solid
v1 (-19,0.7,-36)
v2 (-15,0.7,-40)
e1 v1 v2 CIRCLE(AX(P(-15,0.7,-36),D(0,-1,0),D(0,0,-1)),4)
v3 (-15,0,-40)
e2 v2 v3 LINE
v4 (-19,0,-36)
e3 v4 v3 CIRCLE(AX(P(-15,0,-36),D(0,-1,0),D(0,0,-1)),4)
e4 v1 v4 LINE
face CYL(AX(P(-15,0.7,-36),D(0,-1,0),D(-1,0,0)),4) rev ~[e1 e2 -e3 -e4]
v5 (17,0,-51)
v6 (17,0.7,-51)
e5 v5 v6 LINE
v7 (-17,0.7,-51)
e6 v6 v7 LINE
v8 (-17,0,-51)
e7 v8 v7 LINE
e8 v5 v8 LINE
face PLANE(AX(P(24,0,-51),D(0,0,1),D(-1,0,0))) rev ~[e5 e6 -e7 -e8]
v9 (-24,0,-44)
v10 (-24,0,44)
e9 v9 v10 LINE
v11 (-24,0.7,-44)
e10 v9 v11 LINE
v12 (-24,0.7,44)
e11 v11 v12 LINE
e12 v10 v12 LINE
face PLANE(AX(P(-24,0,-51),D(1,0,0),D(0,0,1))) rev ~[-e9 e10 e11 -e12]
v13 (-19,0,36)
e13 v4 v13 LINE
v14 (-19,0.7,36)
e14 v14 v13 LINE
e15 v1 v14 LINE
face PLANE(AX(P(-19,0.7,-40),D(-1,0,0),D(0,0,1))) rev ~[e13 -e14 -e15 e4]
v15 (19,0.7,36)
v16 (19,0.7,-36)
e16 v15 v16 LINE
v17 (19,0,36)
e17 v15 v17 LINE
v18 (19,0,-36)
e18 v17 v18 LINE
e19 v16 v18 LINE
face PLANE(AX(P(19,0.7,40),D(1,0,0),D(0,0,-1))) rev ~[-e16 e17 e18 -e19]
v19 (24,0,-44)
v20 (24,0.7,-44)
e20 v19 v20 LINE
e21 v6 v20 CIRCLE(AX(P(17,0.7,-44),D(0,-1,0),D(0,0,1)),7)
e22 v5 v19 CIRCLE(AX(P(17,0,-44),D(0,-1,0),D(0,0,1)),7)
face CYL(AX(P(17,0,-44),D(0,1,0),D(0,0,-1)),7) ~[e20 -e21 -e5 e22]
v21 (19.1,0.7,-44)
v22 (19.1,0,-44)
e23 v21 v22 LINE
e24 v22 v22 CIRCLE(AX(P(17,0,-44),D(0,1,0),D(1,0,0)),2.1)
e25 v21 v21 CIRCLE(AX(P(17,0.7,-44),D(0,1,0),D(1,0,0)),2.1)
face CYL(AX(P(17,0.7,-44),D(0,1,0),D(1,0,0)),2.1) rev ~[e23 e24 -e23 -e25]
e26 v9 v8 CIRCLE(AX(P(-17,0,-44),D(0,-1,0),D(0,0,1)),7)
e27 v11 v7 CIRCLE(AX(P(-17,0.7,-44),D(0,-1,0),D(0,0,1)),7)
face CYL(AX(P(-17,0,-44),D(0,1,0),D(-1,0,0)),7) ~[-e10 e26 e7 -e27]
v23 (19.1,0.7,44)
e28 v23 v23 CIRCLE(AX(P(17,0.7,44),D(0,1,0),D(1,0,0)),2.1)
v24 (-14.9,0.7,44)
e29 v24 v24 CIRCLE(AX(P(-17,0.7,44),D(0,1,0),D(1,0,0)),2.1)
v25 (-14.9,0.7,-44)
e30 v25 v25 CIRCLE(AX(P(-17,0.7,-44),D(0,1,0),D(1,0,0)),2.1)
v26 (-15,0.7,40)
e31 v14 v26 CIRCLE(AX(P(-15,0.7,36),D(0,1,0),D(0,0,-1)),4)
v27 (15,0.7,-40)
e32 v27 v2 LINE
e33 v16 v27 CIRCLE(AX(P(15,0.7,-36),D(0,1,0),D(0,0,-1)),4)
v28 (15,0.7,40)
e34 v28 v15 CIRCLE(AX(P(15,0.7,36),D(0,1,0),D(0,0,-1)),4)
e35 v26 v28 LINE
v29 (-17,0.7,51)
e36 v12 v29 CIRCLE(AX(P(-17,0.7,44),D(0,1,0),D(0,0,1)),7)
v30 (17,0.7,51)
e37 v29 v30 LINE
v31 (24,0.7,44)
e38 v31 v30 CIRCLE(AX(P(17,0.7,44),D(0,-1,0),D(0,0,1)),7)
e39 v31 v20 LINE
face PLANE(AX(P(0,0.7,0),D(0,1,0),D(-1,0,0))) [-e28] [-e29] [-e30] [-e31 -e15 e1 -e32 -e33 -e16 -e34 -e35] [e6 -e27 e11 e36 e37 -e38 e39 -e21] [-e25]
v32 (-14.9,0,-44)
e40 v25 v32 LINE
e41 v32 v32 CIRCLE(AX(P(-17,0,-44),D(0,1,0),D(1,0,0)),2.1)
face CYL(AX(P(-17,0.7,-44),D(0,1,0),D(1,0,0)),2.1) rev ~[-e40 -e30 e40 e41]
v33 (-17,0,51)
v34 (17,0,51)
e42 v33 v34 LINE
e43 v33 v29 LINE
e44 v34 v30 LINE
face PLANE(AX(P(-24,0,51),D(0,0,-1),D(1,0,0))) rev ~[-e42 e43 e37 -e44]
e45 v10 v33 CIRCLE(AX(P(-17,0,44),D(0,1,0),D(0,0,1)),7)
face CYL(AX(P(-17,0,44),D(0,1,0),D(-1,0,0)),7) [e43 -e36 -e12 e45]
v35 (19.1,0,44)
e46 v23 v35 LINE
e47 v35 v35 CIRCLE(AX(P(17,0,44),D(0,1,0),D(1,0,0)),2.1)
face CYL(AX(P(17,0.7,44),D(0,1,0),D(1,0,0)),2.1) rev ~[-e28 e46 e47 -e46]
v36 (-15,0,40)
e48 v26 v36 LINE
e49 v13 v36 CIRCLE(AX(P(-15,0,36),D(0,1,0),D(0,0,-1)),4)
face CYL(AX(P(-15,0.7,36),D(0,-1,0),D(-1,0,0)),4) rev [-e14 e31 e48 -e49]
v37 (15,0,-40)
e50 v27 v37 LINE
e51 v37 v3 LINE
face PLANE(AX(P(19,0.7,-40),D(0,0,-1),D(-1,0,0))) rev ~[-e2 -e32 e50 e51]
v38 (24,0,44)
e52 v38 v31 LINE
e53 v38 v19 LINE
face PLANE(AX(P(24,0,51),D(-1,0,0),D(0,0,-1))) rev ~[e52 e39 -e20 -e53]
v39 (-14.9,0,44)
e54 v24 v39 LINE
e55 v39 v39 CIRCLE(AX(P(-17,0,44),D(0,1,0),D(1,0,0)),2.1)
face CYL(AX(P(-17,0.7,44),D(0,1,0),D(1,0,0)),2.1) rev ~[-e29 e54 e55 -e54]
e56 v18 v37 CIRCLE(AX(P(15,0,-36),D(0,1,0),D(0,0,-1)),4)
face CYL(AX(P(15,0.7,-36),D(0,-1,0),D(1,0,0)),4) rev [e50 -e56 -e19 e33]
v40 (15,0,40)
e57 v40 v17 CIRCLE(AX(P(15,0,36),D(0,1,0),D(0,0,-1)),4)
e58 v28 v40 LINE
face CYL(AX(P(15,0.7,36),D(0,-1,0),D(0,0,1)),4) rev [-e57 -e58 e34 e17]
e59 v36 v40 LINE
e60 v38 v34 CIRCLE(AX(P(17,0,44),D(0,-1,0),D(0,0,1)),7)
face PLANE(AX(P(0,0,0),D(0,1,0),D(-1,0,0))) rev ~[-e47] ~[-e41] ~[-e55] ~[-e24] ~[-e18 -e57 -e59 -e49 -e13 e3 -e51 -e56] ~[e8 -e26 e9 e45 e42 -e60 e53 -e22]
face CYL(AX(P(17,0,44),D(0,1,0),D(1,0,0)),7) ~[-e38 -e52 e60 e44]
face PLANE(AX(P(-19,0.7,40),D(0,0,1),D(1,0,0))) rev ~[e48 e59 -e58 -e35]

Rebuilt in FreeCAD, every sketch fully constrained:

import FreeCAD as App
import Part
import Sketcher

V = App.Vector


def edges_at(feature, points):
    """Names of the edges that pass closest to the given points."""
    edges = feature.Shape.Edges
    near = lambda p: min(range(len(edges)), key=lambda i: edges[i].distToShape(Part.Vertex(*p))[0])
    return sorted({f"Edge{near(p) + 1}" for p in points})

doc = App.newDocument("Part")
body = doc.addObject("PartDesign::Body", "Body")

# Sketch on XZ plane
sketch1 = body.newObject("Sketcher::SketchObject", "Sketch")
sketch1.AttachmentSupport = (doc.getObject("XZ_Plane"), [""])
sketch1.MapMode = "FlatFace"
sketch1.addGeometry([
    Part.LineSegment(V(-24, -51, 0), V(-24, 51, 0)),
    Part.LineSegment(V(-24, 51, 0), V(24, 51, 0)),
    Part.LineSegment(V(24, 51, 0), V(24, -51, 0)),
    Part.LineSegment(V(24, -51, 0), V(-24, -51, 0)),
], False)
sketch1.addConstraint([
    Sketcher.Constraint("Coincident", 0, 2, 1, 1),
    Sketcher.Constraint("Coincident", 1, 2, 2, 1),
    Sketcher.Constraint("Coincident", 2, 2, 3, 1),
    Sketcher.Constraint("Coincident", 3, 2, 0, 1),
    Sketcher.Constraint("Vertical", 0),
    Sketcher.Constraint("Horizontal", 1),
    Sketcher.Constraint("Vertical", 2),
    Sketcher.Constraint("Horizontal", 3),
    Sketcher.Constraint("Symmetric", 0, 2, 2, 2, -1, 1),
    Sketcher.Constraint("DistanceX", 1, 1, 1, 2, 48.0),
    Sketcher.Constraint("DistanceY", 0, 1, 0, 2, 102.0),
])
pad1 = body.newObject("PartDesign::Pad", "Pad")
pad1.Profile = sketch1
pad1.Length = 0.7
pad1.Reversed = True
doc.recompute()

fillet = body.newObject("PartDesign::Fillet", "Fillet")
fillet.Base = (pad1, edges_at(pad1, [
    (-24, 0.35, 51),
    (24, 0.35, 51),
    (24, 0.35, -51),
    (-24, 0.35, -51),
]))
fillet.Radius = 7

# Sketch on XZ plane
sketch2 = body.newObject("Sketcher::SketchObject", "Sketch001")
sketch2.AttachmentSupport = (doc.getObject("XZ_Plane"), [""])
sketch2.MapMode = "FlatFace"
sketch2.AttachmentOffset = App.Placement(V(0, 0, -0.7), App.Rotation())
sketch2.addGeometry([
    Part.Circle(V(-17, -44, 0), V(0, 0, 1), 2.1),
    Part.Circle(V(17, -44, 0), V(0, 0, 1), 2.1),
    Part.Circle(V(-17, 44, 0), V(0, 0, 1), 2.1),
    Part.Circle(V(17, 44, 0), V(0, 0, 1), 2.1),
], False)
sketch2.addConstraint([
    Sketcher.Constraint("Equal", 0, 1),
    Sketcher.Constraint("Equal", 1, 2),
    Sketcher.Constraint("Equal", 2, 3),
    Sketcher.Constraint("Symmetric", 1, 3, 2, 3, -1, 1),
    Sketcher.Constraint("Symmetric", 0, 3, 3, 3, -1, 1),
    Sketcher.Constraint("Symmetric", 0, 3, 1, 3, -2),
    Sketcher.Constraint("Diameter", 0, 4.2),
    Sketcher.Constraint("DistanceX", 0, 3, -1, 1, 17.0),
    Sketcher.Constraint("DistanceY", 0, 3, -1, 1, 44.0),
])
pocket1 = body.newObject("PartDesign::Pocket", "Pocket")
pocket1.Profile = sketch2
pocket1.Type = "ThroughAll"
pocket1.Reversed = True

# Sketch on XZ plane
sketch3 = body.newObject("Sketcher::SketchObject", "Sketch002")
sketch3.AttachmentSupport = (doc.getObject("XZ_Plane"), [""])
sketch3.MapMode = "FlatFace"
sketch3.AttachmentOffset = App.Placement(V(0, 0, -0.7), App.Rotation())
sketch3.addGeometry([
    Part.LineSegment(V(-19, -40, 0), V(-19, 40, 0)),
    Part.LineSegment(V(-19, 40, 0), V(19, 40, 0)),
    Part.LineSegment(V(19, 40, 0), V(19, -40, 0)),
    Part.LineSegment(V(19, -40, 0), V(-19, -40, 0)),
], False)
sketch3.addConstraint([
    Sketcher.Constraint("Coincident", 0, 2, 1, 1),
    Sketcher.Constraint("Coincident", 1, 2, 2, 1),
    Sketcher.Constraint("Coincident", 2, 2, 3, 1),
    Sketcher.Constraint("Coincident", 3, 2, 0, 1),
    Sketcher.Constraint("Vertical", 0),
    Sketcher.Constraint("Horizontal", 1),
    Sketcher.Constraint("Vertical", 2),
    Sketcher.Constraint("Horizontal", 3),
    Sketcher.Constraint("Symmetric", 0, 2, 2, 2, -1, 1),
    Sketcher.Constraint("DistanceX", 1, 1, 1, 2, 38.0),
    Sketcher.Constraint("DistanceY", 0, 1, 0, 2, 80.0),
])
pocket2 = body.newObject("PartDesign::Pocket", "Pocket001")
pocket2.Profile = sketch3
pocket2.Type = "ThroughAll"
pocket2.Reversed = True
doc.recompute()

fillet2 = body.newObject("PartDesign::Fillet", "Fillet001")
fillet2.Base = (pocket2, edges_at(pocket2, [
    (-19, 0.35, -40),
    (19, 0.35, -40),
    (19, 0.35, 40),
    (-19, 0.35, 40),
]))
fillet2.Radius = 4

doc.recompute()
